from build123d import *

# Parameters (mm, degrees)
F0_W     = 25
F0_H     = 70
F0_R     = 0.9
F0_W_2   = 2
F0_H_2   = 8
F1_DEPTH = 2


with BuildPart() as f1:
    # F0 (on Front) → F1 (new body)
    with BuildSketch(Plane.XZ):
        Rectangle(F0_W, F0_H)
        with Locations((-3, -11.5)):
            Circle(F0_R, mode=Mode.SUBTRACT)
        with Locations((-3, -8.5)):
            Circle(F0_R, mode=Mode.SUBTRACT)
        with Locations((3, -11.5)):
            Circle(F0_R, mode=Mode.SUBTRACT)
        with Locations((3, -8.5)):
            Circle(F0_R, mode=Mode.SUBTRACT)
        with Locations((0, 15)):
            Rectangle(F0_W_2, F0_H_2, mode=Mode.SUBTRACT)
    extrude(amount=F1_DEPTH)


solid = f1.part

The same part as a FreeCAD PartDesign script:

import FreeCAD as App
import Part
import Sketcher

V = App.Vector
Q = App.Units.Quantity


def add_polygon(sketch, points):
    """Adds a closed chain of lines whose ends are joined by coincident constraints."""
    first, n = sketch.GeometryCount, len(points)
    for a, b in zip(points, points[1:] + points[:1]):
        sketch.addGeometry(Part.LineSegment(App.Vector(*a, 0), App.Vector(*b, 0)), False)
    for i in range(n):
        sketch.addConstraint(Sketcher.Constraint("Coincident", first + i, 2, first + (i + 1) % n, 1))

doc = App.newDocument("Part")
params = doc.addObject("Spreadsheet::Sheet", "Params")
for row, (alias, value) in enumerate([
    ("sketch1_diameter", "1.8 mm"),
    ("sketch1_width", "25 mm"),
    ("sketch1_width2", "2 mm"),
    ("sketch1_height", "70 mm"),
    ("sketch1_height2", "8 mm"),
    ("pad1_length", "2 mm"),
], start=1):
    params.set(f"A{row}", alias)
    params.set(f"B{row}", "=" + value)
    params.setAlias(f"B{row}", alias)

body = doc.addObject("PartDesign::Body", "Body")

sketch1 = body.newObject("Sketcher::SketchObject", "Sketch")
sketch1.AttachmentSupport = (doc.getObject("XZ_Plane"), [""])
sketch1.MapMode = "FlatFace"
add_polygon(sketch1, [(-12.5, 35), (-12.5, -35), (12.5, -35), (12.5, 35)])
sketch1.addGeometry(Part.Circle(V(-3, -11.5, 0), V(0, 0, 1), 0.9), False)
sketch1.addGeometry(Part.Circle(V(-3, -8.5, 0), V(0, 0, 1), 0.9), False)
sketch1.addGeometry(Part.Circle(V(3, -11.5, 0), V(0, 0, 1), 0.9), False)
sketch1.addGeometry(Part.Circle(V(3, -8.5, 0), V(0, 0, 1), 0.9), False)
add_polygon(sketch1, [(1, 11), (-1, 11), (-1, 19), (1, 19)])
sketch1.addConstraint(Sketcher.Constraint("Vertical", 0))
sketch1.addConstraint(Sketcher.Constraint("Horizontal", 1))
sketch1.addConstraint(Sketcher.Constraint("Vertical", 2))
sketch1.addConstraint(Sketcher.Constraint("Horizontal", 3))
sketch1.addConstraint(Sketcher.Constraint("Horizontal", 8))
sketch1.addConstraint(Sketcher.Constraint("Vertical", 9))
sketch1.addConstraint(Sketcher.Constraint("Horizontal", 10))
sketch1.addConstraint(Sketcher.Constraint("Vertical", 11))
sketch1.addConstraint(Sketcher.Constraint("Equal", 4, 5))
sketch1.addConstraint(Sketcher.Constraint("Equal", 5, 6))
sketch1.addConstraint(Sketcher.Constraint("Equal", 6, 7))
sketch1.addConstraint(Sketcher.Constraint("Symmetric", 0, 2, 2, 2, -1, 1))
sketch1.addConstraint(Sketcher.Constraint("Symmetric", 4, 3, 6, 3, -2))
sketch1.addConstraint(Sketcher.Constraint("Symmetric", 5, 3, 7, 3, -2))
sketch1.addConstraint(Sketcher.Constraint("Vertical", 4, 3, 5, 3))
sketch1.addConstraint(Sketcher.Constraint("Diameter", 4, Q("1.8 mm")))
sketch1.addConstraint(Sketcher.Constraint("DistanceX", 1, 1, 1, 2, Q("25 mm")))
sketch1.addConstraint(Sketcher.Constraint("DistanceX", 8, 2, 8, 1, Q("2 mm")))
sketch1.addConstraint(Sketcher.Constraint("DistanceY", 0, 2, 0, 1, Q("70 mm")))
sketch1.addConstraint(Sketcher.Constraint("DistanceY", 9, 1, 9, 2, Q("8 mm")))
sketch1.addConstraint(Sketcher.Constraint("DistanceX", 4, 3, -1, 1, Q("3 mm")))
sketch1.addConstraint(Sketcher.Constraint("DistanceX", 8, 2, -1, 1, Q("1 mm")))
sketch1.addConstraint(Sketcher.Constraint("DistanceY", -1, 1, 8, 2, Q("11 mm")))
sketch1.addConstraint(Sketcher.Constraint("DistanceY", 4, 3, 5, 3, Q("3 mm")))
sketch1.addConstraint(Sketcher.Constraint("DistanceY", 4, 3, -1, 1, Q("11.5 mm")))
sketch1.setExpression("Constraints[23]", "Params.sketch1_diameter")
sketch1.setExpression("Constraints[24]", "Params.sketch1_width")
sketch1.setExpression("Constraints[25]", "Params.sketch1_width2")
sketch1.setExpression("Constraints[26]", "Params.sketch1_height")
sketch1.setExpression("Constraints[27]", "Params.sketch1_height2")
pad1 = body.newObject("PartDesign::Pad", "Pad")
pad1.Profile = sketch1
pad1.setExpression("Length", "Params.pad1_length")

doc.recompute()
